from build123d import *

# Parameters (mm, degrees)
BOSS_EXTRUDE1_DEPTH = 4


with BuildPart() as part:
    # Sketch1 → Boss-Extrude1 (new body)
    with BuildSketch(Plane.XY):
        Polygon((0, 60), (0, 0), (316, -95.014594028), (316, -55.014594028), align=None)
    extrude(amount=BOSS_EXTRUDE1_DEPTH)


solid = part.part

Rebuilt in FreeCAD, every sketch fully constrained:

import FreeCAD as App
import Part
import Sketcher
Q = App.Units.Quantity

doc = App.newDocument("Part")
body = doc.addObject("PartDesign::Body", "Body")

# Sketch on XY plane
sketch1 = body.newObject("Sketcher::SketchObject", "Sketch")
sketch1.AttachmentSupport = (doc.getObject("XY_Plane"), [""])
sketch1.MapMode = "FlatFace"
sketch1.addGeometry(Part.LineSegment(App.Vector(0, 60, 0), App.Vector(0, 0, 0)), False)
sketch1.addGeometry(Part.LineSegment(App.Vector(0, 0, 0), App.Vector(316, -95, 0)), False)
sketch1.addGeometry(Part.LineSegment(App.Vector(316, -95, 0), App.Vector(316, -55, 0)), False)
sketch1.addGeometry(Part.LineSegment(App.Vector(316, -55, 0), App.Vector(0, 60, 0)), False)
sketch1.addConstraint(Sketcher.Constraint("Coincident", 0, 2, 1, 1))
sketch1.addConstraint(Sketcher.Constraint("Coincident", 1, 2, 2, 1))
sketch1.addConstraint(Sketcher.Constraint("Coincident", 2, 2, 3, 1))
sketch1.addConstraint(Sketcher.Constraint("Coincident", 3, 2, 0, 1))
sketch1.addConstraint(Sketcher.Constraint("Vertical", 0))
sketch1.addConstraint(Sketcher.Constraint("Vertical", 2))
sketch1.addConstraint(Sketcher.Constraint("Coincident", 0, 2, -1, 1))
sketch1.addConstraint(Sketcher.Constraint("DistanceY", 0, 2, 0, 1, Q("60 mm")))
sketch1.addConstraint(Sketcher.Constraint("DistanceY", 2, 1, 2, 2, Q("40 mm")))
sketch1.addConstraint(Sketcher.Constraint("Angle", 3, Q("160 deg")))
sketch1.addConstraint(Sketcher.Constraint("DistanceX", -1, 1, 1, 2, Q("316 mm")))
pad1 = body.newObject("PartDesign::Pad", "Pad")
pad1.Profile = sketch1
pad1.Length = 4

doc.recompute()
